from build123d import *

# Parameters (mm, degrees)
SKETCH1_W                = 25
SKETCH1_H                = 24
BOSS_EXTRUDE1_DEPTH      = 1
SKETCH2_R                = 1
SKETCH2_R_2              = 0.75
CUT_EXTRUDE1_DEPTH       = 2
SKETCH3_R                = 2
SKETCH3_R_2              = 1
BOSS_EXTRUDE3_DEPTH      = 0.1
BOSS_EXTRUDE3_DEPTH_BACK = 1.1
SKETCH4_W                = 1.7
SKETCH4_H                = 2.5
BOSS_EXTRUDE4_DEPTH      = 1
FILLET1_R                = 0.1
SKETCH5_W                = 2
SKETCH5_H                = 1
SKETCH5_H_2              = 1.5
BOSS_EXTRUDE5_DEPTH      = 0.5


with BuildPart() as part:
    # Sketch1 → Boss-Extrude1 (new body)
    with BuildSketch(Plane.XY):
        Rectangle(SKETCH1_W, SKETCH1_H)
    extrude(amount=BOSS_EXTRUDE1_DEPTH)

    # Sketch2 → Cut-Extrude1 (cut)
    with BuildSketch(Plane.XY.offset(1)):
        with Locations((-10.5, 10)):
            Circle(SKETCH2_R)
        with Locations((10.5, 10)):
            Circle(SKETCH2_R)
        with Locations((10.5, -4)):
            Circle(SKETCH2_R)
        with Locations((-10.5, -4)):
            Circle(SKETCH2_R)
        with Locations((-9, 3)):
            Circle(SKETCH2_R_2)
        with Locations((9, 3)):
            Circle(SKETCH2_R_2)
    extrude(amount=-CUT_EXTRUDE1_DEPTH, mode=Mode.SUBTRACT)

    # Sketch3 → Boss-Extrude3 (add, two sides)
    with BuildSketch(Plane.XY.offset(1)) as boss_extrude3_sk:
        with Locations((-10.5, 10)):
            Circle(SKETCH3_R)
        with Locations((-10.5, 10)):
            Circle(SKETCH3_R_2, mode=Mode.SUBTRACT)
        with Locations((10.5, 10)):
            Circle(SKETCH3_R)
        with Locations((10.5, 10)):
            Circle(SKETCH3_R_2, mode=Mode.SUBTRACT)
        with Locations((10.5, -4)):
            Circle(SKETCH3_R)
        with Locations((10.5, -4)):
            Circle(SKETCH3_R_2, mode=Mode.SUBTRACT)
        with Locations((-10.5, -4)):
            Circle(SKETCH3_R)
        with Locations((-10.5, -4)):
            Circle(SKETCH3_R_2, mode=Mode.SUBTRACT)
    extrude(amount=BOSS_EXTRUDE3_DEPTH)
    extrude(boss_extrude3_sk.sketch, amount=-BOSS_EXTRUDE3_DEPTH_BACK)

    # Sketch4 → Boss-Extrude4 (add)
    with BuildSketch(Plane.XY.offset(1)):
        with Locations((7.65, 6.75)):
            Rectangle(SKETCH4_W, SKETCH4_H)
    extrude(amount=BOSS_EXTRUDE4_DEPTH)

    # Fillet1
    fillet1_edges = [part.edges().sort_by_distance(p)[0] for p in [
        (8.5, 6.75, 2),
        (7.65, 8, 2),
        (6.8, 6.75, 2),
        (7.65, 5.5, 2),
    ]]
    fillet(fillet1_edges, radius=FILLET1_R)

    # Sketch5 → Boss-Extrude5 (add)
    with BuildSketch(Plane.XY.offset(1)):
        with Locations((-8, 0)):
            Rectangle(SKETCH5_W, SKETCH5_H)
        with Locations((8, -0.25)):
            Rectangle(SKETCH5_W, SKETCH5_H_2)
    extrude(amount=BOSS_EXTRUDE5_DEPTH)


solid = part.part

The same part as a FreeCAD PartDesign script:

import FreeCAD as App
import Part
import Sketcher


def edges_at(feature, points):
    """Names of the edges that pass closest to the given points."""
    edges = feature.Shape.Edges
    near = lambda p: min(range(len(edges)), key=lambda i: edges[i].distToShape(Part.Vertex(*p))[0])
    return sorted({f"Edge{near(p) + 1}" for p in points})


def add_polygon(sketch, points):
    """Adds a closed chain of lines whose ends are joined by coincident constraints."""
    first, n = sketch.GeometryCount, len(points)
    for a, b in zip(points, points[1:] + points[:1]):
        sketch.addGeometry(Part.LineSegment(App.Vector(*a, 0), App.Vector(*b, 0)), False)
    for i in range(n):
        sketch.addConstraint(Sketcher.Constraint("Coincident", first + i, 2, first + (i + 1) % n, 1))

doc = App.newDocument("Part")
params = doc.addObject("Spreadsheet::Sheet", "Params")
for row, (alias, value) in enumerate([
    ("sketch1_width", "25 mm"),
    ("sketch1_height", "24 mm"),
    ("pad1_length", "1 mm"),
    ("sketch2_diameter", "2 mm"),
    ("sketch2_diameter2", "1.5 mm"),
    ("pocket1_length", "2 mm"),
    ("sketch3_diameter", "4 mm"),
    ("sketch3_diameter2", "2 mm"),
    ("pad2_length", "0.1 mm"),
    ("pad2_length2", "1.1 mm"),
    ("sketch4_width", "1.7 mm"),
    ("sketch4_height", "2.5 mm"),
    ("pad3_length", "1 mm"),
    ("fillet_radius", "0.1 mm"),
    ("sketch5_width", "2 mm"),
    ("sketch5_height", "1 mm"),
    ("sketch5_height2", "1.5 mm"),
    ("pad4_length", "0.5 mm"),
], start=1):
    params.set(f"A{row}", alias)
    params.set(f"B{row}", "=" + value)
    params.setAlias(f"B{row}", alias)

body = doc.addObject("PartDesign::Body", "Body")

sketch1 = body.newObject("Sketcher::SketchObject", "Sketch")
sketch1.AttachmentSupport = (doc.getObject("XY_Plane"), [""])
sketch1.MapMode = "FlatFace"
add_polygon(sketch1, [(-12, 12), (-12, -12), (12, -12), (12, 12)])
sketch1.addConstraint(Sketcher.Constraint("Vertical", 0))
sketch1.addConstraint(Sketcher.Constraint("Horizontal", 1))
sketch1.addConstraint(Sketcher.Constraint("Vertical", 2))
sketch1.addConstraint(Sketcher.Constraint("Horizontal", 3))
sketch1.addConstraint(Sketcher.Constraint("Symmetric", 0, 2, 2, 2, -1, 1))
sketch1.addConstraint(Sketcher.Constraint("DistanceX", 1, 1, 1, 2, 25.0))
sketch1.addConstraint(Sketcher.Constraint("DistanceY", 0, 2, 0, 1, 24.0))
sketch1.setExpression("Constraints[9]", "Params.sketch1_width")
sketch1.setExpression("Constraints[10]", "Params.sketch1_height")
pad1 = body.newObject("PartDesign::Pad", "Pad")
pad1.Profile = sketch1
pad1.setExpression("Length", "Params.pad1_length")

sketch2 = body.newObject("Sketcher::SketchObject", "Sketch001")
sketch2.AttachmentSupport = (doc.getObject("XY_Plane"), [""])
sketch2.MapMode = "FlatFace"
sketch2.AttachmentOffset = App.Placement(App.Vector(0, 0, 1), App.Rotation())
sketch2.addGeometry(Part.Circle(App.Vector(-10.5, 10, 0), App.Vector(0, 0, 1), 1), False)
sketch2.addGeometry(Part.Circle(App.Vector(10.5, 10, 0), App.Vector(0, 0, 1), 1), False)
sketch2.addGeometry(Part.Circle(App.Vector(10.5, -4, 0), App.Vector(0, 0, 1), 1), False)
sketch2.addGeometry(Part.Circle(App.Vector(-10.5, -4, 0), App.Vector(0, 0, 1), 1), False)
sketch2.addGeometry(Part.Circle(App.Vector(-9, 3, 0), App.Vector(0, 0, 1), 0.8), False)
sketch2.addGeometry(Part.Circle(App.Vector(9, 3, 0), App.Vector(0, 0, 1), 0.8), False)
sketch2.addConstraint(Sketcher.Constraint("Equal", 0, 1))
sketch2.addConstraint(Sketcher.Constraint("Equal", 1, 2))
sketch2.addConstraint(Sketcher.Constraint("Equal", 2, 3))
sketch2.addConstraint(Sketcher.Constraint("Equal", 4, 5))
sketch2.addConstraint(Sketcher.Constraint("Symmetric", 0, 3, 1, 3, -2))
sketch2.addConstraint(Sketcher.Constraint("Symmetric", 2, 3, 3, 3, -2))
sketch2.addConstraint(Sketcher.Constraint("Symmetric", 4, 3, 5, 3, -2))
sketch2.addConstraint(Sketcher.Constraint("Vertical", 1, 3, 2, 3))
sketch2.addConstraint(Sketcher.Constraint("Diameter", 0, 2.0))
sketch2.addConstraint(Sketcher.Constraint("Diameter", 4, 1.5))
sketch2.addConstraint(Sketcher.Constraint("DistanceY", -1, 1, 0, 3, 10.0))
sketch2.addConstraint(Sketcher.Constraint("DistanceY", 2, 3, -1, 1, 4.0))
sketch2.addConstraint(Sketcher.Constraint("DistanceX", 4, 3, -1, 1, 9.0))
sketch2.addConstraint(Sketcher.Constraint("DistanceY", -1, 1, 4, 3, 3.0))
sketch2.addConstraint(Sketcher.Constraint("DistanceX", 0, 3, 1, 3, 21.0))
sketch2.setExpression("Constraints[8]", "Params.sketch2_diameter")
sketch2.setExpression("Constraints[9]", "Params.sketch2_diameter2")
pocket1 = body.newObject("PartDesign::Pocket", "Pocket")
pocket1.Profile = sketch2
pocket1.setExpression("Length", "Params.pocket1_length")

sketch3 = body.newObject("Sketcher::SketchObject", "Sketch002")
sketch3.AttachmentSupport = (doc.getObject("XY_Plane"), [""])
sketch3.MapMode = "FlatFace"
sketch3.AttachmentOffset = App.Placement(App.Vector(0, 0, 1), App.Rotation())
sketch3.addGeometry(Part.Circle(App.Vector(-10.5, 10, 0), App.Vector(0, 0, 1), 2), False)
sketch3.addGeometry(Part.Circle(App.Vector(-10.5, 10, 0), App.Vector(0, 0, 1), 1), False)
sketch3.addGeometry(Part.Circle(App.Vector(10.5, 10, 0), App.Vector(0, 0, 1), 2), False)
sketch3.addGeometry(Part.Circle(App.Vector(10.5, 10, 0), App.Vector(0, 0, 1), 1), False)
sketch3.addGeometry(Part.Circle(App.Vector(10.5, -4, 0), App.Vector(0, 0, 1), 2), False)
sketch3.addGeometry(Part.Circle(App.Vector(10.5, -4, 0), App.Vector(0, 0, 1), 1), False)
sketch3.addGeometry(Part.Circle(App.Vector(-10.5, -4, 0), App.Vector(0, 0, 1), 2), False)
sketch3.addGeometry(Part.Circle(App.Vector(-10.5, -4, 0), App.Vector(0, 0, 1), 1), False)
sketch3.addConstraint(Sketcher.Constraint("Coincident", 1, 3, 0, 3))
sketch3.addConstraint(Sketcher.Constraint("Coincident", 3, 3, 2, 3))
sketch3.addConstraint(Sketcher.Constraint("Coincident", 5, 3, 4, 3))
sketch3.addConstraint(Sketcher.Constraint("Coincident", 7, 3, 6, 3))
sketch3.addConstraint(Sketcher.Constraint("Equal", 0, 2))
sketch3.addConstraint(Sketcher.Constraint("Equal", 1, 3))
sketch3.addConstraint(Sketcher.Constraint("Equal", 2, 4))
sketch3.addConstraint(Sketcher.Constraint("Equal", 3, 5))
sketch3.addConstraint(Sketcher.Constraint("Equal", 4, 6))
sketch3.addConstraint(Sketcher.Constraint("Equal", 5, 7))
sketch3.addConstraint(Sketcher.Constraint("Symmetric", 0, 3, 2, 3, -2))
sketch3.addConstraint(Sketcher.Constraint("Symmetric", 4, 3, 6, 3, -2))
sketch3.addConstraint(Sketcher.Constraint("Vertical", 3, 3, 4, 3))
sketch3.addConstraint(Sketcher.Constraint("Diameter", 0, 4.0))
sketch3.addConstraint(Sketcher.Constraint("Diameter", 1, 2.0))
sketch3.addConstraint(Sketcher.Constraint("DistanceY", -1, 1, 0, 3, 10.0))
sketch3.addConstraint(Sketcher.Constraint("DistanceY", 4, 3, -1, 1, 4.0))
sketch3.addConstraint(Sketcher.Constraint("DistanceX", 0, 3, 2, 3, 21.0))
sketch3.setExpression("Constraints[13]", "Params.sketch3_diameter")
sketch3.setExpression("Constraints[14]", "Params.sketch3_diameter2")
pad2 = body.newObject("PartDesign::Pad", "Pad001")
pad2.Profile = sketch3
pad2.Type = "TwoLengths"
pad2.setExpression("Length", "Params.pad2_length")
pad2.setExpression("Length2", "Params.pad2_length2")

sketch4 = body.newObject("Sketcher::SketchObject", "Sketch003")
sketch4.AttachmentSupport = (doc.getObject("XY_Plane"), [""])
sketch4.MapMode = "FlatFace"
sketch4.AttachmentOffset = App.Placement(App.Vector(0, 0, 1), App.Rotation())
add_polygon(sketch4, [(6.8, 8), (6.8, 5.5), (8.5, 5.5), (8.5, 8)])
sketch4.addConstraint(Sketcher.Constraint("Vertical", 0))
sketch4.addConstraint(Sketcher.Constraint("Horizontal", 1))
sketch4.addConstraint(Sketcher.Constraint("Vertical", 2))
sketch4.addConstraint(Sketcher.Constraint("Horizontal", 3))
sketch4.addConstraint(Sketcher.Constraint("DistanceX", 1, 1, 1, 2, 1.7))
sketch4.addConstraint(Sketcher.Constraint("DistanceY", 0, 2, 0, 1, 2.5))
sketch4.addConstraint(Sketcher.Constraint("DistanceY", -1, 1, 2, 2, 8.0))
sketch4.addConstraint(Sketcher.Constraint("DistanceX", -1, 1, 0, 2, 6.8))
sketch4.setExpression("Constraints[8]", "Params.sketch4_width")
sketch4.setExpression("Constraints[9]", "Params.sketch4_height")
pad3 = body.newObject("PartDesign::Pad", "Pad002")
pad3.Profile = sketch4
pad3.setExpression("Length", "Params.pad3_length")
doc.recompute()

fillet = body.newObject("PartDesign::Fillet", "Fillet")
fillet.Base = (pad3, edges_at(pad3, [
    (8.5, 6.75, 2),
    (7.65, 8, 2),
    (6.8, 6.75, 2),
    (7.65, 5.5, 2),
]))
fillet.setExpression("Radius", "Params.fillet_radius")

sketch5 = body.newObject("Sketcher::SketchObject", "Sketch004")
sketch5.AttachmentSupport = (doc.getObject("XY_Plane"), [""])
sketch5.MapMode = "FlatFace"
sketch5.AttachmentOffset = App.Placement(App.Vector(0, 0, 1), App.Rotation())
add_polygon(sketch5, [(-9, 0.5), (-9, -0.5), (-7, -0.5), (-7, 0.5)])
add_polygon(sketch5, [(7, 0.5), (7, -1), (9, -1), (9, 0.5)])
sketch5.addConstraint(Sketcher.Constraint("Vertical", 0))
sketch5.addConstraint(Sketcher.Constraint("Horizontal", 1))
sketch5.addConstraint(Sketcher.Constraint("Vertical", 2))
sketch5.addConstraint(Sketcher.Constraint("Horizontal", 3))
sketch5.addConstraint(Sketcher.Constraint("Vertical", 4))
sketch5.addConstraint(Sketcher.Constraint("Horizontal", 5))
sketch5.addConstraint(Sketcher.Constraint("Vertical", 6))
sketch5.addConstraint(Sketcher.Constraint("Horizontal", 7))
sketch5.addConstraint(Sketcher.Constraint("Symmetric", 0, 2, 6, 2, -1, 1))
sketch5.addConstraint(Sketcher.Constraint("Symmetric", 2, 2, 7, 2, -2))
sketch5.addConstraint(Sketcher.Constraint("DistanceX", 1, 1, 1, 2, 2.0))
sketch5.addConstraint(Sketcher.Constraint("DistanceY", 0, 2, 0, 1, 1.0))
sketch5.addConstraint(Sketcher.Constraint("DistanceY", 4, 2, 4, 1, 1.5))
sketch5.addConstraint(Sketcher.Constraint("DistanceX", 0, 2, -1, 1, 9.0))
sketch5.setExpression("Constraints[18]", "Params.sketch5_width")
sketch5.setExpression("Constraints[19]", "Params.sketch5_height")
sketch5.setExpression("Constraints[20]", "Params.sketch5_height2")
pad4 = body.newObject("PartDesign::Pad", "Pad003")
pad4.Profile = sketch5
pad4.setExpression("Length", "Params.pad4_length")

doc.recompute()
